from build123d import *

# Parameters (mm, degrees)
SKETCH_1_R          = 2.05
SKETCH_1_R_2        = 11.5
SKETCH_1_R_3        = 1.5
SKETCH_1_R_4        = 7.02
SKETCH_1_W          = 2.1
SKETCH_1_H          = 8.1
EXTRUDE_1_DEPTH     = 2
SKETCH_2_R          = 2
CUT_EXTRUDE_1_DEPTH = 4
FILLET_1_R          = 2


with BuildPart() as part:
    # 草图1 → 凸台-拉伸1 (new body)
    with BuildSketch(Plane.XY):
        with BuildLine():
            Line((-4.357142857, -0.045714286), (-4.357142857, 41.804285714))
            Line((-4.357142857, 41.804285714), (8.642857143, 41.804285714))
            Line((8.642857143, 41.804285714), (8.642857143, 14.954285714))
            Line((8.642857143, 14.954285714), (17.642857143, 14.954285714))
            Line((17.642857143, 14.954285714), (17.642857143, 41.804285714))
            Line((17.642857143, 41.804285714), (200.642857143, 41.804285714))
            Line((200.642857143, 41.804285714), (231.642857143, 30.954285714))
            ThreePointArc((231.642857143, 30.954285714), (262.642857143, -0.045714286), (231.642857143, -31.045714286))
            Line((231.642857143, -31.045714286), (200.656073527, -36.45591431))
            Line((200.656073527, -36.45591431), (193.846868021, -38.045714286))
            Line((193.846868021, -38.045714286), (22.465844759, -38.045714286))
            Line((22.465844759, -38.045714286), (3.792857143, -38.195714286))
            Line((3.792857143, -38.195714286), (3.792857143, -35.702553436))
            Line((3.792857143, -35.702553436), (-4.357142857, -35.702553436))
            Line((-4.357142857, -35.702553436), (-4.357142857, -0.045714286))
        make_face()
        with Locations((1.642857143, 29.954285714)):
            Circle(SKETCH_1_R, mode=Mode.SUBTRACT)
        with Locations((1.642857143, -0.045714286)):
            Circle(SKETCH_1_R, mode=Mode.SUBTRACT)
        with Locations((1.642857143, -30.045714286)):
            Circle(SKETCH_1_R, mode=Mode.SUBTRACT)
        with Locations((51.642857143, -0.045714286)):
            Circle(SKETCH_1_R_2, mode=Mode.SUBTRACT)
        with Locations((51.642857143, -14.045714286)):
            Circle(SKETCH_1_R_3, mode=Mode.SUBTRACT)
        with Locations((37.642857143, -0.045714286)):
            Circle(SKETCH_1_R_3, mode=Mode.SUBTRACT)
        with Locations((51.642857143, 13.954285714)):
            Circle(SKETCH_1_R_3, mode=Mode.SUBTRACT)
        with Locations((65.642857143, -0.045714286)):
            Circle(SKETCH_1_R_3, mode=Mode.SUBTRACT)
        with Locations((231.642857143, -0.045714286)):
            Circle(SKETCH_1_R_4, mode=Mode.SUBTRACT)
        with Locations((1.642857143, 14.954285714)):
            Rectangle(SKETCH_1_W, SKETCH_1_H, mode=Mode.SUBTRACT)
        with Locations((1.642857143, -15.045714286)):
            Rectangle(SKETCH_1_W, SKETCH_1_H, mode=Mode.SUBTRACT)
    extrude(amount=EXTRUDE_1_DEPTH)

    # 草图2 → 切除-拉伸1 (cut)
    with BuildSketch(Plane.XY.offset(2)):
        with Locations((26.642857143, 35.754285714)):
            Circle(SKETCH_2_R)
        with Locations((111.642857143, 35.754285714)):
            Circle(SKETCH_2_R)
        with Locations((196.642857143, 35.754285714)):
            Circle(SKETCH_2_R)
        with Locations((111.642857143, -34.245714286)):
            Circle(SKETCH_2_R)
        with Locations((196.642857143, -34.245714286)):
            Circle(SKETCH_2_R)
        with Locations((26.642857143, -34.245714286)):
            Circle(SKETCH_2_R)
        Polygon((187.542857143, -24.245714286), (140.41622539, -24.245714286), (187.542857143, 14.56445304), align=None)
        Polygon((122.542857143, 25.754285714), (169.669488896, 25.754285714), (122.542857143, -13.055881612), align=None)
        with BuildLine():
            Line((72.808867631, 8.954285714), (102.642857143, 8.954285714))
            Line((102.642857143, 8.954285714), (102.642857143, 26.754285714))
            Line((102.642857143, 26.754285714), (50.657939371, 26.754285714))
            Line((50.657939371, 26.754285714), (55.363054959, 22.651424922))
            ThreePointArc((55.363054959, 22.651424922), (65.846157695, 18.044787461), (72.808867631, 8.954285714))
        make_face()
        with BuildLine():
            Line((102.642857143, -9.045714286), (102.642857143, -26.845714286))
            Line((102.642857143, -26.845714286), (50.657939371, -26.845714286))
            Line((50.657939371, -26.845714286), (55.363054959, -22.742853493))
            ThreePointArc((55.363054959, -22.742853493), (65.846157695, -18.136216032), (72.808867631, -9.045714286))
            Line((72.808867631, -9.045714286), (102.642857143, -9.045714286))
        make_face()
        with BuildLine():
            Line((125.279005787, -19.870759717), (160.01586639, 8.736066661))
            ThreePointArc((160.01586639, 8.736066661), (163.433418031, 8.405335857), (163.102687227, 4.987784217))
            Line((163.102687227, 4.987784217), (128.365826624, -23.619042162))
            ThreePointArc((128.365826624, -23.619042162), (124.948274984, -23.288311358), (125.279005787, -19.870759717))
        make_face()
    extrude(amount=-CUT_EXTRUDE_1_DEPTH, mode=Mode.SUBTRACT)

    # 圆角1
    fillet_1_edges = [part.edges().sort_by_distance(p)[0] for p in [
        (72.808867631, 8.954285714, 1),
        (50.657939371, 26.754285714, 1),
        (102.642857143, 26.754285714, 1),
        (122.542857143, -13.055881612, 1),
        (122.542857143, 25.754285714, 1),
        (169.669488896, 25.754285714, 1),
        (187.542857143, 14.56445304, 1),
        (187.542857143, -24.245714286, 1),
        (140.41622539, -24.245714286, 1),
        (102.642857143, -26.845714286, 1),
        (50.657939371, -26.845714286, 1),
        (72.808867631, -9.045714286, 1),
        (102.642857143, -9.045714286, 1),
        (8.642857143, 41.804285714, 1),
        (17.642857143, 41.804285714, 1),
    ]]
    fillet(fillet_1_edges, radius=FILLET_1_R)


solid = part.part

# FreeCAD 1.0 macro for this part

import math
import FreeCAD as App
import Part
import Sketcher

V = App.Vector
Q = App.Units.Quantity


def edges_at(feature, points):
    """Names of the edges that pass closest to the given points."""
    edges = feature.Shape.Edges
    near = lambda p: min(range(len(edges)), key=lambda i: edges[i].distToShape(Part.Vertex(*p))[0])
    return sorted({f"Edge{near(p) + 1}" for p in points})

doc = App.newDocument("Part")
body = doc.addObject("PartDesign::Body", "Body")

# Sketch on XY plane
sketch1 = doc.addObject("Sketcher::SketchObject", "Sketch")
body.addObject(sketch1)
sketch1.AttachmentSupport = (doc.XY_Plane, [""])
sketch1.MapMode = "FlatFace"
sketch1.addGeometry([
    Part.LineSegment(V(8.6, 41.8, 0), V(-4.4, 41.8, 0)),  # 0
    Part.LineSegment(V(-4.4, 41.8, 0), V(-4.4, -35.7, 0)),  # 1
    Part.LineSegment(V(-4.4, -35.7, 0), V(3.8, -35.7, 0)),  # 2
    Part.LineSegment(V(3.8, -35.7, 0), V(3.8, -38.2, 0)),  # 3
    Part.LineSegment(V(3.8, -38.2, 0), V(22.5, -38, 0)),  # 4
    Part.LineSegment(V(22.5, -38, 0), V(193.8, -38, 0)),  # 5
    Part.LineSegment(V(193.8, -38, 0), V(200.7, -36.5, 0)),  # 6
    Part.LineSegment(V(200.7, -36.5, 0), V(231.6, -31, 0)),  # 7
    Part.ArcOfCircle(Part.Circle(V(231.6, 0, 0), V(0, 0, 1), 31), math.radians(-90), math.radians(90)),  # 8
    Part.LineSegment(V(231.6, 31, 0), V(200.6, 41.8, 0)),  # 9
    Part.LineSegment(V(200.6, 41.8, 0), V(17.6, 41.8, 0)),  # 10
    Part.LineSegment(V(17.6, 41.8, 0), V(17.6, 15, 0)),  # 11
    Part.LineSegment(V(17.6, 15, 0), V(8.6, 15, 0)),  # 12
    Part.LineSegment(V(8.6, 15, 0), V(8.6, 41.8, 0)),  # 13
    Part.Circle(V(1.6, -30, 0), V(0, 0, 1), 2),  # 14
    Part.Circle(V(51.6, -14, 0), V(0, 0, 1), 1.5),  # 15
    Part.LineSegment(V(0.6, -19.1, 0), V(0.6, -11, 0)),  # 16
    Part.LineSegment(V(0.6, -11, 0), V(2.7, -11, 0)),  # 17
    Part.LineSegment(V(2.7, -11, 0), V(2.7, -19.1, 0)),  # 18
    Part.LineSegment(V(2.7, -19.1, 0), V(0.6, -19.1, 0)),  # 19
    Part.Circle(V(231.6, 0, 0), V(0, 0, 1), 7),  # 20
    Part.Circle(V(65.6, 0, 0), V(0, 0, 1), 1.5),  # 21
    Part.Circle(V(51.6, 0, 0), V(0, 0, 1), 11.5),  # 22
    Part.Circle(V(37.6, 0, 0), V(0, 0, 1), 1.5),  # 23
    Part.Circle(V(1.6, 0, 0), V(0, 0, 1), 2),  # 24
    Part.Circle(V(51.6, 14, 0), V(0, 0, 1), 1.5),  # 25
    Part.LineSegment(V(0.6, 10.9, 0), V(0.6, 19, 0)),  # 26
    Part.LineSegment(V(0.6, 19, 0), V(2.7, 19, 0)),  # 27
    Part.LineSegment(V(2.7, 19, 0), V(2.7, 10.9, 0)),  # 28
    Part.LineSegment(V(2.7, 10.9, 0), V(0.6, 10.9, 0)),  # 29
    Part.Circle(V(1.6, 30, 0), V(0, 0, 1), 2),  # 30
], False)
sketch1.addConstraint([
    Sketcher.Constraint("Coincident", 0, 2, 1, 1),
    Sketcher.Constraint("Coincident", 1, 2, 2, 1),
    Sketcher.Constraint("Coincident", 2, 2, 3, 1),
    Sketcher.Constraint("Coincident", 3, 2, 4, 1),
    Sketcher.Constraint("Coincident", 4, 2, 5, 1),
    Sketcher.Constraint("Coincident", 5, 2, 6, 1),
    Sketcher.Constraint("Coincident", 6, 2, 7, 1),
    Sketcher.Constraint("Coincident", 7, 2, 8, 1),
    Sketcher.Constraint("Coincident", 8, 2, 9, 1),
    Sketcher.Constraint("Coincident", 9, 2, 10, 1),
    Sketcher.Constraint("Coincident", 10, 2, 11, 1),
    Sketcher.Constraint("Coincident", 11, 2, 12, 1),
    Sketcher.Constraint("Coincident", 12, 2, 13, 1),
    Sketcher.Constraint("Coincident", 13, 2, 0, 1),
    Sketcher.Constraint("Coincident", 16, 2, 17, 1),
    Sketcher.Constraint("Coincident", 17, 2, 18, 1),
    Sketcher.Constraint("Coincident", 18, 2, 19, 1),
    Sketcher.Constraint("Coincident", 19, 2, 16, 1),
    Sketcher.Constraint("Coincident", 26, 2, 27, 1),
    Sketcher.Constraint("Coincident", 27, 2, 28, 1),
    Sketcher.Constraint("Coincident", 28, 2, 29, 1),
    Sketcher.Constraint("Coincident", 29, 2, 26, 1),
    Sketcher.Constraint("Horizontal", 0),
    Sketcher.Constraint("Vertical", 1),
    Sketcher.Constraint("Horizontal", 2),
    Sketcher.Constraint("Vertical", 3),
    Sketcher.Constraint("Horizontal", 5),
    Sketcher.Constraint("Horizontal", 10),
    Sketcher.Constraint("Vertical", 11),
    Sketcher.Constraint("Horizontal", 12),
    Sketcher.Constraint("Vertical", 13),
    Sketcher.Constraint("Vertical", 16),
    Sketcher.Constraint("Horizontal", 17),
    Sketcher.Constraint("Vertical", 18),
    Sketcher.Constraint("Horizontal", 19),
    Sketcher.Constraint("Vertical", 26),
    Sketcher.Constraint("Horizontal", 27),
    Sketcher.Constraint("Vertical", 28),
    Sketcher.Constraint("Horizontal", 29),
    Sketcher.Constraint("Coincident", 20, 3, 8, 3),
    Sketcher.Constraint("Equal", 15, 21),
    Sketcher.Constraint("Equal", 21, 23),
    Sketcher.Constraint("Equal", 14, 24),
    Sketcher.Constraint("Equal", 23, 25),
    Sketcher.Constraint("Equal", 24, 30),
    Sketcher.Constraint("Horizontal", 20, 3, 21, 3),
    Sketcher.Constraint("Horizontal", 21, 3, 22, 3),
    Sketcher.Constraint("Horizontal", 22, 3, 23, 3),
    Sketcher.Constraint("Horizontal", 23, 3, 24, 3),
    Sketcher.Constraint("Horizontal", 0, 2, 9, 2),
    Sketcher.Constraint("Vertical", 15, 3, 22, 3),
    Sketcher.Constraint("Vertical", 14, 3, 24, 3),
    Sketcher.Constraint("Vertical", 22, 3, 25, 3),
    Sketcher.Constraint("Vertical", 24, 3, 30, 3),
    Sketcher.Constraint("Vertical", 20, 3, 7, 2),
    Sketcher.Constraint("Vertical", 7, 2, 8, 2),
    Sketcher.Constraint("Vertical", 19, 2, 26, 2),
    Sketcher.Constraint("Vertical", 18, 2, 27, 2),
    Sketcher.Constraint("Equal", 18, 26),
    Sketcher.Constraint("Diameter", 15, Q("3 mm")),
    Sketcher.Constraint("Diameter", 22, Q("23 mm")),
    Sketcher.Constraint("Radius", 8, Q("31 mm")),
    Sketcher.Constraint("Diameter", 14, Q("4.1 mm")),
    Sketcher.Constraint("Diameter", 20, Q("14.04 mm")),
    Sketcher.Constraint("DistanceX", 0, 2, 0, 1, Q("13 mm")),
    Sketcher.Constraint("DistanceX", 10, 2, 10, 1, Q("183 mm")),
    Sketcher.Constraint("DistanceX", 12, 2, 12, 1, Q("9 mm")),
    Sketcher.Constraint("DistanceX", 17, 1, 17, 2, Q("2.1 mm")),
    Sketcher.Constraint("DistanceY", 16, 1, 16, 2, Q("8.1 mm")),
    Sketcher.Constraint("DistanceX", 14, 3, 8, 3, Q("230 mm")),
    Sketcher.Constraint("DistanceY", 14, 3, 8, 3, Q("30 mm")),
    Sketcher.Constraint("DistanceX", 14, 3, 15, 3, Q("50 mm")),
    Sketcher.Constraint("DistanceY", 14, 3, 15, 3, Q("16 mm")),
    Sketcher.Constraint("DistanceX", 15, 3, 21, 3, Q("14 mm")),
    Sketcher.Constraint("DistanceX", 23, 3, 22, 3, Q("14 mm")),
    Sketcher.Constraint("DistanceY", 22, 3, 25, 3, Q("14 mm")),
    Sketcher.Constraint("DistanceY", 24, 3, 30, 3, Q("30 mm")),
    Sketcher.Constraint("DistanceX", 0, 2, 30, 3, Q("6 mm")),
    Sketcher.Constraint("DistanceY", 4, 2, 14, 3, Q("8 mm")),
    Sketcher.Constraint("DistanceY", 24, 3, 11, 2, Q("15 mm")),
    Sketcher.Constraint("DistanceX", 2, 1, 2, 2, Q("8.15 mm")),
    Sketcher.Constraint("DistanceY", 11, 2, 11, 1, Q("26.85 mm")),
    Sketcher.Constraint("DistanceX", 16, 2, 2, 2, Q("3.2 mm")),
    Sketcher.Constraint("DistanceY", 26, 2, 0, 2, Q("22.8 mm")),
    Sketcher.Constraint("DistanceY", 3, 2, 14, 3, Q("8.15 mm")),
    Sketcher.Constraint("DistanceY", 16, 2, 24, 3, Q("10.95 mm")),
    Sketcher.Constraint("DistanceY", 1, 2, 1, 1, Q("77.506839 mm")),
    Sketcher.Constraint("DistanceY", 5, 2, 6, 2, Q("1.5898 mm")),
    Sketcher.Constraint("Distance", 4, Q("18.67359 mm")),
    Sketcher.Constraint("Distance", 7, Q("31.45554 mm")),
    Sketcher.Constraint("DistanceX", 5, 1, 5, 2, Q("171.381023 mm")),
    Sketcher.Constraint("DistanceX", -1, 1, 5, 2, Q("193.846868 mm")),
    Sketcher.Constraint("DistanceY", 8, 3, -1, 1, Q("0.045714 mm")),
])
pad1 = doc.addObject("PartDesign::Pad", "Pad")
body.addObject(pad1)
pad1.Profile = sketch1
pad1.Length = 2

# Sketch on XY plane
sketch2 = doc.addObject("Sketcher::SketchObject", "Sketch001")
body.addObject(sketch2)
sketch2.AttachmentSupport = (doc.XY_Plane, [""])
sketch2.MapMode = "FlatFace"
sketch2.AttachmentOffset = App.Placement(V(0, 0, 2), App.Rotation())
sketch2.addGeometry([
    Part.Circle(V(26.6, 35.8, 0), V(0, 0, 1), 2),  # 0
    Part.Circle(V(111.6, 35.8, 0), V(0, 0, 1), 2),  # 1
    Part.Circle(V(196.6, 35.8, 0), V(0, 0, 1), 2),  # 2
    Part.Circle(V(111.6, -34.2, 0), V(0, 0, 1), 2),  # 3
    Part.Circle(V(196.6, -34.2, 0), V(0, 0, 1), 2),  # 4
    Part.Circle(V(26.6, -34.2, 0), V(0, 0, 1), 2),  # 5
    Part.LineSegment(V(140.4, -24.2, 0), V(187.5, -24.2, 0)),  # 6
    Part.LineSegment(V(187.5, -24.2, 0), V(187.5, 14.6, 0)),  # 7
    Part.LineSegment(V(187.5, 14.6, 0), V(140.4, -24.2, 0)),  # 8
    Part.LineSegment(V(169.7, 25.8, 0), V(122.5, 25.8, 0)),  # 9
    Part.LineSegment(V(122.5, 25.8, 0), V(122.5, -13.1, 0)),  # 10
    Part.LineSegment(V(122.5, -13.1, 0), V(169.7, 25.8, 0)),  # 11
    Part.LineSegment(V(72.8, 9, 0), V(102.6, 9, 0)),  # 12
    Part.LineSegment(V(102.6, 9, 0), V(102.6, 26.8, 0)),  # 13
    Part.LineSegment(V(102.6, 26.8, 0), V(50.7, 26.8, 0)),  # 14
    Part.LineSegment(V(50.7, 26.8, 0), V(55.4, 22.7, 0)),  # 15
    Part.ArcOfCircle(Part.Circle(V(51.6, 0, 0), V(0, 0, 1), 23), math.radians(23), math.radians(81)),  # 16
    Part.LineSegment(V(102.6, -26.8, 0), V(102.6, -9, 0)),  # 17
    Part.LineSegment(V(102.6, -9, 0), V(72.8, -9, 0)),  # 18
    Part.ArcOfCircle(Part.Circle(V(51.6, 0, 0), V(0, 0, 1), 23), math.radians(-81), math.radians(-23)),  # 19
    Part.LineSegment(V(55.4, -22.7, 0), V(50.7, -26.8, 0)),  # 20
    Part.LineSegment(V(50.7, -26.8, 0), V(102.6, -26.8, 0)),  # 21
    Part.LineSegment(V(160, 8.7, 0), V(125.3, -19.9, 0)),  # 22
    Part.ArcOfCircle(Part.Circle(V(126.8, -21.7, 0), V(0, 0, 1), 2.4), math.radians(129), math.radians(309)),  # 23
    Part.LineSegment(V(128.4, -23.6, 0), V(163.1, 5, 0)),  # 24
    Part.ArcOfCircle(Part.Circle(V(161.6, 6.9, 0), V(0, 0, 1), 2.4), math.radians(-51), math.radians(129)),  # 25
], False)
sketch2.addConstraint([
    Sketcher.Constraint("Coincident", 6, 2, 7, 1),
    Sketcher.Constraint("Coincident", 7, 2, 8, 1),
    Sketcher.Constraint("Coincident", 8, 2, 6, 1),
    Sketcher.Constraint("Coincident", 9, 2, 10, 1),
    Sketcher.Constraint("Coincident", 10, 2, 11, 1),
    Sketcher.Constraint("Coincident", 11, 2, 9, 1),
    Sketcher.Constraint("Coincident", 12, 2, 13, 1),
    Sketcher.Constraint("Coincident", 13, 2, 14, 1),
    Sketcher.Constraint("Coincident", 14, 2, 15, 1),
    Sketcher.Constraint("Coincident", 15, 2, 16, 2),
    Sketcher.Constraint("Coincident", 16, 1, 12, 1),
    Sketcher.Constraint("Coincident", 17, 2, 18, 1),
    Sketcher.Constraint("Coincident", 18, 2, 19, 2),
    Sketcher.Constraint("Coincident", 19, 1, 20, 1),
    Sketcher.Constraint("Coincident", 20, 2, 21, 1),
    Sketcher.Constraint("Coincident", 21, 2, 17, 1),
    Sketcher.Constraint("Tangent", 22, 2, 23, 1),
    Sketcher.Constraint("Tangent", 23, 2, 24, 1),
    Sketcher.Constraint("Tangent", 24, 2, 25, 1),
    Sketcher.Constraint("Tangent", 25, 2, 22, 1),
    Sketcher.Constraint("Horizontal", 6),
    Sketcher.Constraint("Vertical", 7),
    Sketcher.Constraint("Horizontal", 9),
    Sketcher.Constraint("Vertical", 10),
    Sketcher.Constraint("Horizontal", 12),
    Sketcher.Constraint("Vertical", 13),
    Sketcher.Constraint("Horizontal", 14),
    Sketcher.Constraint("Vertical", 17),
    Sketcher.Constraint("Horizontal", 18),
    Sketcher.Constraint("Horizontal", 21),
    Sketcher.Constraint("Coincident", 19, 3, 16, 3),
    Sketcher.Constraint("Equal", 0, 1),
    Sketcher.Constraint("Equal", 1, 2),
    Sketcher.Constraint("Equal", 2, 3),
    Sketcher.Constraint("Equal", 3, 4),
    Sketcher.Constraint("Equal", 4, 5),
    Sketcher.Constraint("Equal", 16, 19),
    Sketcher.Constraint("Equal", 23, 25),
    Sketcher.Constraint("Parallel", 8, 11),
    Sketcher.Constraint("Parallel", 11, 22),
    Sketcher.Constraint("Horizontal", 0, 3, 1, 3),
    Sketcher.Constraint("Horizontal", 1, 3, 2, 3),
    Sketcher.Constraint("Horizontal", 3, 3, 4, 3),
    Sketcher.Constraint("Horizontal", 4, 3, 5, 3),
    Sketcher.Constraint("Vertical", 1, 3, 3, 3),
    Sketcher.Constraint("Vertical", 2, 3, 4, 3),
    Sketcher.Constraint("Vertical", 0, 3, 5, 3),
    Sketcher.Constraint("Vertical", 13, 2, 17, 2),
    Sketcher.Constraint("Vertical", 16, 1, 18, 2),
    Sketcher.Constraint("Vertical", 15, 2, 19, 1),
    Sketcher.Constraint("Vertical", 14, 2, 20, 2),
    Sketcher.Constraint("Equal", 6, 9),
    Sketcher.Constraint("Equal", 13, 17),
    Sketcher.Constraint("Diameter", 0, Q("4 mm")),
    Sketcher.Constraint("Radius", 16, Q("23 mm")),
    Sketcher.Constraint("Distance", 22, Q("45 mm")),
    Sketcher.Constraint("DistanceY", 13, 1, 13, 2, Q("17.8 mm")),
    Sketcher.Constraint("DistanceX", 0, 3, 1, 3, Q("85 mm")),
    Sketcher.Constraint("DistanceX", 1, 3, 2, 3, Q("85 mm")),
    Sketcher.Constraint("DistanceY", 3, 3, 1, 3, Q("70 mm")),
    Sketcher.Constraint("DistanceX", 5, 3, 16, 3, Q("25 mm")),
    Sketcher.Constraint("DistanceY", 4, 3, 6, 2, Q("10 mm")),
    Sketcher.Constraint("DistanceY", 9, 2, 1, 3, Q("10 mm")),
    Sketcher.Constraint("DistanceX", 12, 2, 1, 3, Q("9 mm")),
    Sketcher.Constraint("DistanceY", 13, 2, 1, 3, Q("9 mm")),
    Sketcher.Constraint("DistanceY", 16, 3, 16, 1, Q("9 mm")),
    Sketcher.Constraint("DistanceX", 6, 2, 4, 3, Q("9.1 mm")),
    Sketcher.Constraint("DistanceX", 1, 3, 9, 2, Q("10.9 mm")),
    Sketcher.Constraint("Radius", 23, Q("2.427863 mm")),
    Sketcher.Constraint("DistanceX", 6, 1, 6, 2, Q("47.126632 mm")),
    Sketcher.Constraint("DistanceY", 23, 3, -1, 1, Q("21.744901 mm")),
    Sketcher.Constraint("DistanceX", 23, 2, 8, 2, Q("12.050399 mm")),
    Sketcher.Constraint("DistanceX", 24, 2, 11, 2, Q("6.566802 mm")),
    Sketcher.Constraint("DistanceY", 24, 2, 11, 2, Q("20.766501 mm")),
    Sketcher.Constraint("DistanceX", 14, 2, 14, 1, Q("51.984918 mm")),
    Sketcher.Constraint("DistanceX", -1, 1, 11, 2, Q("169.669489 mm")),
    Sketcher.Constraint("DistanceY", 15, 2, 14, 2, Q("4.102861 mm")),
])
pocket1 = doc.addObject("PartDesign::Pocket", "Pocket")
body.addObject(pocket1)
pocket1.Profile = sketch2
pocket1.Length = 4
doc.recompute()

fillet = doc.addObject("PartDesign::Fillet", "Fillet")
body.addObject(fillet)
fillet.Base = (pocket1, edges_at(pocket1, [
    (72.809, 8.954, 1),
    (50.658, 26.754, 1),
    (102.643, 26.754, 1),
    (122.543, -13.056, 1),
    (122.543, 25.754, 1),
    (169.669, 25.754, 1),
    (187.543, 14.564, 1),
    (187.543, -24.246, 1),
    (140.416, -24.246, 1),
    (102.643, -26.846, 1),
    (50.658, -26.846, 1),
    (72.809, -9.046, 1),
    (102.643, -9.046, 1),
    (8.643, 41.804, 1),
    (17.643, 41.804, 1),
]))
fillet.Radius = 2

doc.recompute()
